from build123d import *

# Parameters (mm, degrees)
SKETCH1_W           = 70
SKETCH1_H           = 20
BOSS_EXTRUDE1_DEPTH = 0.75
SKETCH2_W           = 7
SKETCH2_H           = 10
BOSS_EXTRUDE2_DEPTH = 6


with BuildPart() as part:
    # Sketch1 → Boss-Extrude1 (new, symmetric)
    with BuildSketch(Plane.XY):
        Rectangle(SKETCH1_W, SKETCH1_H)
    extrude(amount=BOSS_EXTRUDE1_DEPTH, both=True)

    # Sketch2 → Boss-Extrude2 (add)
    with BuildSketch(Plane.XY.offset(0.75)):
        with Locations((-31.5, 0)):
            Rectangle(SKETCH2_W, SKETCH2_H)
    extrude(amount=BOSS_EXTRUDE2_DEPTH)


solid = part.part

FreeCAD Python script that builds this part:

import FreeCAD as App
import Part
import Sketcher
Q = App.Units.Quantity

doc = App.newDocument("Part")
params = doc.addObject("Spreadsheet::Sheet", "Params")
for row, (alias, value) in enumerate([
    ("sketch1_width", "70 mm"),
    ("sketch1_height", "20 mm"),
    ("pad1_length", "1.5 mm"),
    ("sketch2_width", "7 mm"),
    ("sketch2_height", "10 mm"),
    ("pad2_length", "6 mm"),
], start=1):
    params.set(f"A{row}", alias)
    params.set(f"B{row}", "=" + value)
    params.setAlias(f"B{row}", alias)

body = doc.addObject("PartDesign::Body", "Body")

# Sketch on XY plane
sketch1 = doc.addObject("Sketcher::SketchObject", "Sketch")
body.addObject(sketch1)
sketch1.AttachmentSupport = (doc.XY_Plane, [""])
sketch1.MapMode = "FlatFace"
sketch1.addGeometry([
    Part.LineSegment(App.Vector(-35, 10, 0), App.Vector(-35, -10, 0)),
    Part.LineSegment(App.Vector(-35, -10, 0), App.Vector(35, -10, 0)),
    Part.LineSegment(App.Vector(35, -10, 0), App.Vector(35, 10, 0)),
    Part.LineSegment(App.Vector(35, 10, 0), App.Vector(-35, 10, 0)),
], False)
sketch1.addConstraint([
    Sketcher.Constraint("Coincident", 0, 2, 1, 1),
    Sketcher.Constraint("Coincident", 1, 2, 2, 1),
    Sketcher.Constraint("Coincident", 2, 2, 3, 1),
    Sketcher.Constraint("Coincident", 3, 2, 0, 1),
    Sketcher.Constraint("Vertical", 0),
    Sketcher.Constraint("Horizontal", 1),
    Sketcher.Constraint("Vertical", 2),
    Sketcher.Constraint("Horizontal", 3),
    Sketcher.Constraint("Symmetric", 0, 2, 2, 2, -1, 1),
    Sketcher.Constraint("DistanceX", 1, 1, 1, 2, Q("70 mm")),
    Sketcher.Constraint("DistanceY", 0, 2, 0, 1, Q("20 mm")),
])
sketch1.setExpression("Constraints[9]", "Params.sketch1_width")
sketch1.setExpression("Constraints[10]", "Params.sketch1_height")
pad1 = doc.addObject("PartDesign::Pad", "Pad")
body.addObject(pad1)
pad1.Profile = sketch1
pad1.setExpression("Length", "Params.pad1_length")
pad1.Midplane = True

# Sketch on XY plane
sketch2 = doc.addObject("Sketcher::SketchObject", "Sketch001")
body.addObject(sketch2)
sketch2.AttachmentSupport = (doc.XY_Plane, [""])
sketch2.MapMode = "FlatFace"
sketch2.AttachmentOffset = App.Placement(App.Vector(0, 0, 0.75), App.Rotation())
sketch2.addGeometry([
    Part.LineSegment(App.Vector(-35, 5, 0), App.Vector(-35, -5, 0)),
    Part.LineSegment(App.Vector(-35, -5, 0), App.Vector(-28, -5, 0)),
    Part.LineSegment(App.Vector(-28, -5, 0), App.Vector(-28, 5, 0)),
    Part.LineSegment(App.Vector(-28, 5, 0), App.Vector(-35, 5, 0)),
], False)
sketch2.addConstraint([
    Sketcher.Constraint("Coincident", 0, 2, 1, 1),
    Sketcher.Constraint("Coincident", 1, 2, 2, 1),
    Sketcher.Constraint("Coincident", 2, 2, 3, 1),
    Sketcher.Constraint("Coincident", 3, 2, 0, 1),
    Sketcher.Constraint("Vertical", 0),
    Sketcher.Constraint("Horizontal", 1),
    Sketcher.Constraint("Vertical", 2),
    Sketcher.Constraint("Horizontal", 3),
    Sketcher.Constraint("DistanceX", 1, 1, 1, 2, Q("7 mm")),
    Sketcher.Constraint("DistanceY", 0, 2, 0, 1, Q("10 mm")),
    Sketcher.Constraint("DistanceX", 0, 2, -1, 1, Q("35 mm")),
    Sketcher.Constraint("DistanceY", 0, 2, -1, 1, Q("5 mm")),
])
sketch2.setExpression("Constraints[8]", "Params.sketch2_width")
sketch2.setExpression("Constraints[9]", "Params.sketch2_height")
pad2 = doc.addObject("PartDesign::Pad", "Pad001")
body.addObject(pad2)
pad2.Profile = sketch2
pad2.setExpression("Length", "Params.pad2_length")

doc.recompute()
